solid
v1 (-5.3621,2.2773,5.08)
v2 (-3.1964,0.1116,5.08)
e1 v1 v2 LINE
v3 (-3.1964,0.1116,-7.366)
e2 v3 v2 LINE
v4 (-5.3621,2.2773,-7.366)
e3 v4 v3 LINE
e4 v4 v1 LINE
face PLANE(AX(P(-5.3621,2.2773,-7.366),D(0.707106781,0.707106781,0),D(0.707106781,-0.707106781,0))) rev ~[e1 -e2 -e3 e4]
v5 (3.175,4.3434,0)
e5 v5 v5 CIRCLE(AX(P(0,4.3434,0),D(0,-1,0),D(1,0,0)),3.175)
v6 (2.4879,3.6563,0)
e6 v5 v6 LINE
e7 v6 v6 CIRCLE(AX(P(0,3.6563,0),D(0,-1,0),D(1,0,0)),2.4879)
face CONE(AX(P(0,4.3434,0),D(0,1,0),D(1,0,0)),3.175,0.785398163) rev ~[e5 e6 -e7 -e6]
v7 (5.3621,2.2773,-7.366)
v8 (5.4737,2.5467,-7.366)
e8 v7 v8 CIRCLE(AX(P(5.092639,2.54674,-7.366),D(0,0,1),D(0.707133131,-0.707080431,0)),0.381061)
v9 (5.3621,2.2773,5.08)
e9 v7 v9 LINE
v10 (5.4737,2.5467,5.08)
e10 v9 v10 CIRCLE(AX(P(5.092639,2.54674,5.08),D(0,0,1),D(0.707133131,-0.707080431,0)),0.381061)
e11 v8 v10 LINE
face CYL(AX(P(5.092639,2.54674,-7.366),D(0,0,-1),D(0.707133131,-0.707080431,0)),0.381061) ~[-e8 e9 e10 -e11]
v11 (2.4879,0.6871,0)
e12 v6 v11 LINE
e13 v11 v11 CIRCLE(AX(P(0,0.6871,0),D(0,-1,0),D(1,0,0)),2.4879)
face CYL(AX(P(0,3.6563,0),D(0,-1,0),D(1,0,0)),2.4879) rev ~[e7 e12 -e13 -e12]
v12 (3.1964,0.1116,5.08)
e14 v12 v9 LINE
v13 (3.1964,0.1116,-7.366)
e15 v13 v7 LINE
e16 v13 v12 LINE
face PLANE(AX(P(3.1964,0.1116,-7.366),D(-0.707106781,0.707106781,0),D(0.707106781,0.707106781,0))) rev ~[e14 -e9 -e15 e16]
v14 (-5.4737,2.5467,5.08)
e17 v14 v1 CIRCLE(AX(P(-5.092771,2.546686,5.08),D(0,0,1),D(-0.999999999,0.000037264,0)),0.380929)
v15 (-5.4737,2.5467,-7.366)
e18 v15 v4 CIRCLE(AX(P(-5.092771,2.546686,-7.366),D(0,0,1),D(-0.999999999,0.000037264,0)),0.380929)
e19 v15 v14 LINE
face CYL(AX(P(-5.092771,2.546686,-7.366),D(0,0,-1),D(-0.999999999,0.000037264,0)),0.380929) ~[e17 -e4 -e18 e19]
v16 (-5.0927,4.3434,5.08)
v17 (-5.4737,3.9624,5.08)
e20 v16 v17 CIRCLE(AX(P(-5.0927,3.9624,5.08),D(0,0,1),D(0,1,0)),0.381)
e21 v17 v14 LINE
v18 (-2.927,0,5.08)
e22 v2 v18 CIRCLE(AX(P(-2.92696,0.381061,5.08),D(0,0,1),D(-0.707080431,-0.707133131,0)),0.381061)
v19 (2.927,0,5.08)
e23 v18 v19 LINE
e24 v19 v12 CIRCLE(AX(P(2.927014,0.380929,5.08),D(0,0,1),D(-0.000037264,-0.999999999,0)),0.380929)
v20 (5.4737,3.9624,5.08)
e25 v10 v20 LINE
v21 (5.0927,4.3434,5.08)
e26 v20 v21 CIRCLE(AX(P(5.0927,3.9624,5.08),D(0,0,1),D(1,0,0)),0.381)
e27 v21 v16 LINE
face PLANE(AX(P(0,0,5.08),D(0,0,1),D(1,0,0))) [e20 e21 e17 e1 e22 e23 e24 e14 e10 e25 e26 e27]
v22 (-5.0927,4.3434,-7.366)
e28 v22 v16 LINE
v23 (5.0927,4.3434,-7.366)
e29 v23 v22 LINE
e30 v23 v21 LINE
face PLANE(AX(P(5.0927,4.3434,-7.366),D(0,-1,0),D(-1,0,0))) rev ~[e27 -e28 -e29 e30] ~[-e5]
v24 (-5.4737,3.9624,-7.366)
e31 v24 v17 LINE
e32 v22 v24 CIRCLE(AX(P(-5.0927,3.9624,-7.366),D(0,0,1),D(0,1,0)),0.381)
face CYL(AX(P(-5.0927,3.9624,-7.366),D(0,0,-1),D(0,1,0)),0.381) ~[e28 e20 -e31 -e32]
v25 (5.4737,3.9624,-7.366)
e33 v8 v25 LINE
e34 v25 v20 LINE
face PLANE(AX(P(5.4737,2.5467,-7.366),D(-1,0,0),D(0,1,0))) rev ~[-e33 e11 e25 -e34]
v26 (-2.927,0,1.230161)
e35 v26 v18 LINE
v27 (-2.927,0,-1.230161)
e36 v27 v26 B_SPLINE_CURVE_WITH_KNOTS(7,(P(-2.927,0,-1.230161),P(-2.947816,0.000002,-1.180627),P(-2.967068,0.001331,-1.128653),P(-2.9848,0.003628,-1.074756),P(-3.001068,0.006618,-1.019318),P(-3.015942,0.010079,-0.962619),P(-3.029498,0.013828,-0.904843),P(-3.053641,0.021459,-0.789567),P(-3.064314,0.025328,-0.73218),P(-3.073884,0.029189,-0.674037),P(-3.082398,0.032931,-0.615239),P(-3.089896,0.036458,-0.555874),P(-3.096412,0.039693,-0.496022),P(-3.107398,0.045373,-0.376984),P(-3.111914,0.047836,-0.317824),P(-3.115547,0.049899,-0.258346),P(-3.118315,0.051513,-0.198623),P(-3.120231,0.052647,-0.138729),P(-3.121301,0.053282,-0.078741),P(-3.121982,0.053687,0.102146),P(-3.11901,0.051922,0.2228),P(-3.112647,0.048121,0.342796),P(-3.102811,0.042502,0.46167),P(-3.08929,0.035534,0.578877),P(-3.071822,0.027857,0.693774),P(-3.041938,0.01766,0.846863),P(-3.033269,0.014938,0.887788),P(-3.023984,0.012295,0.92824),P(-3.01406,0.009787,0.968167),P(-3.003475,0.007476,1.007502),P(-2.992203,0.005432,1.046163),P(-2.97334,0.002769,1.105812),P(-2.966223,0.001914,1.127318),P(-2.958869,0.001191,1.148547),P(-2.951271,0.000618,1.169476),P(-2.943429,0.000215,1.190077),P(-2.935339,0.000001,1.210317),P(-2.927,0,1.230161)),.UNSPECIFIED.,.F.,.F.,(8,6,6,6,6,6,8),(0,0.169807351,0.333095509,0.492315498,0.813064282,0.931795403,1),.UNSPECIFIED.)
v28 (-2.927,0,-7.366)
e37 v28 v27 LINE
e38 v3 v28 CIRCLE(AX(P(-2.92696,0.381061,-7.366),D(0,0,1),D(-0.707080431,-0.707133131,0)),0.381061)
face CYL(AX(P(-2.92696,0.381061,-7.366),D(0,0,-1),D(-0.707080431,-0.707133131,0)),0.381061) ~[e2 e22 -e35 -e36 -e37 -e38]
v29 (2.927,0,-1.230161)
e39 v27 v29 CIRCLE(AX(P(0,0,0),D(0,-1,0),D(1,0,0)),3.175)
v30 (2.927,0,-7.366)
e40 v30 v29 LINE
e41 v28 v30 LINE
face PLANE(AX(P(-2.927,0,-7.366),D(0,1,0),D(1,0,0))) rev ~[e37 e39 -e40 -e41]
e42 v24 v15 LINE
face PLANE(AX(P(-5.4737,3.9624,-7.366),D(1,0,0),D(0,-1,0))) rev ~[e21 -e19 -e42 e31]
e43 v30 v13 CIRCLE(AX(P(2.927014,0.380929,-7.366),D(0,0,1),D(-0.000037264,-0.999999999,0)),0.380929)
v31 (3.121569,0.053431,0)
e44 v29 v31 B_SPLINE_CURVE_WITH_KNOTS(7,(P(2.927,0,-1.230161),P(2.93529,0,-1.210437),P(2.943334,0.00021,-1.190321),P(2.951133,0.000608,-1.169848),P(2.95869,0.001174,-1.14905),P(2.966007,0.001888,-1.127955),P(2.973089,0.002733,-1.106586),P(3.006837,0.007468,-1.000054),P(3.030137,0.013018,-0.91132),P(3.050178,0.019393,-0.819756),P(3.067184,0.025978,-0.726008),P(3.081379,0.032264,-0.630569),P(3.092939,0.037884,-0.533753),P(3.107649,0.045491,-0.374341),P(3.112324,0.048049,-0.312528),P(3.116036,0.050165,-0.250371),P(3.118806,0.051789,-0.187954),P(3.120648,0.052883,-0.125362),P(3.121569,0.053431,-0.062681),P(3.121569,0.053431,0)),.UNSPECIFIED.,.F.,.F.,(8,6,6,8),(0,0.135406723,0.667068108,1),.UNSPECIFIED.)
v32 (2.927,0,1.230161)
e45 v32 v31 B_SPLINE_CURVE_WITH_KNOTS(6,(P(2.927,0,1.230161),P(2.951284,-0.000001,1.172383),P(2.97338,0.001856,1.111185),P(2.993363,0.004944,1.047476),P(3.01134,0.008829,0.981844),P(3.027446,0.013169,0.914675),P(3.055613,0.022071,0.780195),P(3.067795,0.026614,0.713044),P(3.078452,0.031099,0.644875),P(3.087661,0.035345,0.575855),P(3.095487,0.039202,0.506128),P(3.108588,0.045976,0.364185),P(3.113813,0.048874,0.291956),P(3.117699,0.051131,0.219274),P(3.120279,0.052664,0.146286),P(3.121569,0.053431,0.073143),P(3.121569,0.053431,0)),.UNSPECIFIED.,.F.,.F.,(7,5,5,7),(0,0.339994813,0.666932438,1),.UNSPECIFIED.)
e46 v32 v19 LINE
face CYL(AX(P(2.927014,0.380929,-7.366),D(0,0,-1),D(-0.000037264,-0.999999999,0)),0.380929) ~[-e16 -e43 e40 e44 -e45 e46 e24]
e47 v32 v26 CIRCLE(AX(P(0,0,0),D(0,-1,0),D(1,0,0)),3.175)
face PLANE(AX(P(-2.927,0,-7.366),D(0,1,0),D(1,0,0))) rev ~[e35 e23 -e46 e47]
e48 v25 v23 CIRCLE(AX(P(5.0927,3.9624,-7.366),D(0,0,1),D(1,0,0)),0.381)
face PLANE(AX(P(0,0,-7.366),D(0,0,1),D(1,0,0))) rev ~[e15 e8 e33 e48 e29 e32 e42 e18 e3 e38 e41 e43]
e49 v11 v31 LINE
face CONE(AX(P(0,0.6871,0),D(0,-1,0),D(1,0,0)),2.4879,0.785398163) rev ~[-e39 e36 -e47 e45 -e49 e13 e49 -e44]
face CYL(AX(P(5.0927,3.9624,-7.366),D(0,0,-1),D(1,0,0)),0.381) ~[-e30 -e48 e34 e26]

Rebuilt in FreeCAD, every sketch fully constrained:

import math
import FreeCAD as App
import Part
import Sketcher

V = App.Vector
Q = App.Units.Quantity


def add_polygon(sketch, points):
    """Adds a closed chain of lines whose ends are joined by coincident constraints."""
    first, n = sketch.GeometryCount, len(points)
    for a, b in zip(points, points[1:] + points[:1]):
        sketch.addGeometry(Part.LineSegment(App.Vector(*a, 0), App.Vector(*b, 0)), False)
    for i in range(n):
        sketch.addConstraint(Sketcher.Constraint("Coincident", first + i, 2, first + (i + 1) % n, 1))

doc = App.newDocument("Part")
params = doc.addObject("Spreadsheet::Sheet", "Params")
for row, (alias, value) in enumerate([
    ("sketch1_radius", "0.015 in"),
    ("sketch1_width", "0.401 in"),
    ("pad1_length", "0.49 in"),
    ("sketch2_width", "0.125 in"),
    ("sketch2_height", "0.171 in"),
    ("groove_angle", "360 deg"),
], start=1):
    params.set(f"A{row}", alias)
    params.set(f"B{row}", "=" + value)
    params.setAlias(f"B{row}", alias)

body = doc.addObject("PartDesign::Body", "Body")

sketch1 = doc.addObject("Sketcher::SketchObject", "Sketch")
body.addObject(sketch1)
sketch1.AttachmentSupport = (doc.XY_Plane, [""])
sketch1.MapMode = "FlatFace"
sketch1.AttachmentOffset = App.Placement(V(0, 0, -0.29 * 25.4), App.Rotation())
sketch1.addGeometry([
    Part.ArcOfCircle(Part.Circle(V(-5.09, 3.96, 0), V(0, 0, 1), 0.38), math.radians(90), math.radians(180)),
    Part.LineSegment(V(-5.47, 3.96, 0), V(-5.47, 2.55, 0)),
    Part.ArcOfCircle(Part.Circle(V(-5.09, 2.55, 0), V(0, 0, 1), 0.38), math.radians(180), math.radians(225)),
    Part.LineSegment(V(-5.36, 2.28, 0), V(-3.2, 0.11, 0)),
    Part.ArcOfCircle(Part.Circle(V(-2.93, 0.38, 0), V(0, 0, 1), 0.38), math.radians(-135), math.radians(-90)),
    Part.LineSegment(V(-2.93, 0, 0), V(2.93, 0, 0)),
    Part.ArcOfCircle(Part.Circle(V(2.93, 0.38, 0), V(0, 0, 1), 0.38), math.radians(-90), math.radians(-45)),
    Part.LineSegment(V(3.2, 0.11, 0), V(5.36, 2.28, 0)),
    Part.ArcOfCircle(Part.Circle(V(5.09, 2.55, 0), V(0, 0, 1), 0.38), math.radians(-45), math.radians(0)),
    Part.LineSegment(V(5.47, 2.55, 0), V(5.47, 3.96, 0)),
    Part.ArcOfCircle(Part.Circle(V(5.09, 3.96, 0), V(0, 0, 1), 0.38), math.radians(0), math.radians(90)),
    Part.LineSegment(V(5.09, 4.34, 0), V(-5.09, 4.34, 0)),
], False)
sketch1.addConstraint([
    Sketcher.Constraint("Tangent", 0, 2, 1, 1),
    Sketcher.Constraint("Tangent", 1, 2, 2, 1),
    Sketcher.Constraint("Tangent", 2, 2, 3, 1),
    Sketcher.Constraint("Tangent", 3, 2, 4, 1),
    Sketcher.Constraint("Tangent", 4, 2, 5, 1),
    Sketcher.Constraint("Tangent", 5, 2, 6, 1),
    Sketcher.Constraint("Tangent", 6, 2, 7, 1),
    Sketcher.Constraint("Tangent", 7, 2, 8, 1),
    Sketcher.Constraint("Tangent", 8, 2, 9, 1),
    Sketcher.Constraint("Tangent", 9, 2, 10, 1),
    Sketcher.Constraint("Tangent", 10, 2, 11, 1),
    Sketcher.Constraint("Tangent", 11, 2, 0, 1),
    Sketcher.Constraint("Vertical", 1),
    Sketcher.Constraint("Horizontal", 5),
    Sketcher.Constraint("Vertical", 9),
    Sketcher.Constraint("Horizontal", 11),
    Sketcher.Constraint("Equal", 0, 2),
    Sketcher.Constraint("Equal", 2, 4),
    Sketcher.Constraint("Equal", 4, 6),
    Sketcher.Constraint("Equal", 6, 8),
    Sketcher.Constraint("Equal", 8, 10),
    Sketcher.Constraint("Symmetric", 4, 2, 5, 2, -1, 1),
    Sketcher.Constraint("Symmetric", 2, 3, 8, 3, -2),
    Sketcher.Constraint("Perpendicular", 3, 7),
    Sketcher.Constraint("Radius", 0, Q("0.015 in")),
    Sketcher.Constraint("DistanceX", 11, 2, 11, 1, Q("0.401 in")),
    Sketcher.Constraint("DistanceY", -1, 1, 0, 3, Q("0.156 in")),
    Sketcher.Constraint("DistanceX", 5, 1, 5, 2, Q("5.854 mm")),
])
sketch1.setExpression("Constraints[24]", "Params.sketch1_radius")
sketch1.setExpression("Constraints[25]", "Params.sketch1_width")
pad1 = doc.addObject("PartDesign::Pad", "Pad")
body.addObject(pad1)
pad1.Profile = sketch1
pad1.setExpression("Length", "Params.pad1_length")

sketch2 = doc.addObject("Sketcher::SketchObject", "Sketch001")
body.addObject(sketch2)
sketch2.AttachmentSupport = (doc.XY_Plane, [""])
sketch2.MapMode = "FlatFace"
add_polygon(sketch2, [(0, 4.3), (0, 0), (3.2, 0), (2.5, 0.7), (2.5, 3.7), (3.2, 4.3)])
sketch2.addConstraint([
    Sketcher.Constraint("Vertical", 0),
    Sketcher.Constraint("Horizontal", 1),
    Sketcher.Constraint("Vertical", 3),
    Sketcher.Constraint("Horizontal", 5),
    Sketcher.Constraint("Coincident", 0, 2, -1, 1),
    Sketcher.Constraint("Perpendicular", 2, 4),
    Sketcher.Constraint("Vertical", 1, 2, 4, 2),
    Sketcher.Constraint("Equal", 2, 4),
    Sketcher.Constraint("DistanceX", 1, 1, 1, 2, Q("0.125 in")),
    Sketcher.Constraint("DistanceY", 0, 2, 0, 1, Q("0.171 in")),
    Sketcher.Constraint("DistanceY", 3, 1, 3, 2, Q("0.1169 in")),
])
sketch2.setExpression("Constraints[14]", "Params.sketch2_width")
sketch2.setExpression("Constraints[15]", "Params.sketch2_height")
groove = doc.addObject("PartDesign::Groove", "Groove")
body.addObject(groove)
groove.Profile = sketch2
groove.ReferenceAxis = (sketch2, ["V_Axis"])
groove.setExpression("Angle", "Params.groove_angle")

doc.recompute()
